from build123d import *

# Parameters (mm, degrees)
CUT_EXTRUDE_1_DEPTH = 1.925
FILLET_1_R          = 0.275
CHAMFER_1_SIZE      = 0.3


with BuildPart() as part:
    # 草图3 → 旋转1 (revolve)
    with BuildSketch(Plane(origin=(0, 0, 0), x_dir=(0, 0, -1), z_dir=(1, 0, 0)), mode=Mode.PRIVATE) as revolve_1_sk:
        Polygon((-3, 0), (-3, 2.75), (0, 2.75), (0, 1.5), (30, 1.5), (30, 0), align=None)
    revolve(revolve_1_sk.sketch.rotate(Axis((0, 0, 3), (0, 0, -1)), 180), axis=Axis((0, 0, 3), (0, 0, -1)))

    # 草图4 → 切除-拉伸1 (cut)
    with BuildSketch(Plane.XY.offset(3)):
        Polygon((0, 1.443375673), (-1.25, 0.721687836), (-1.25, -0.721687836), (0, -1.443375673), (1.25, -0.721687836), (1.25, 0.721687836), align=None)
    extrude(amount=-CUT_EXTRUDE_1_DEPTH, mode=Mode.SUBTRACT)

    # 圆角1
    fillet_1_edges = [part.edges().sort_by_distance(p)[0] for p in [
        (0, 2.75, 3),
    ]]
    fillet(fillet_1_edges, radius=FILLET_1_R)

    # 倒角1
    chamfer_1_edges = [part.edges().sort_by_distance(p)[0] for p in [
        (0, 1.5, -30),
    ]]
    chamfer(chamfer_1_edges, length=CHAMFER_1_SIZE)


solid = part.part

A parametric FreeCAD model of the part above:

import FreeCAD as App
import Part
import Sketcher
Q = App.Units.Quantity


def edges_at(feature, points):
    """Names of the edges that pass closest to the given points."""
    edges = feature.Shape.Edges
    near = lambda p: min(range(len(edges)), key=lambda i: edges[i].distToShape(Part.Vertex(*p))[0])
    return sorted({f"Edge{near(p) + 1}" for p in points})

doc = App.newDocument("Part")
body = doc.addObject("PartDesign::Body", "Body")

sketch1 = body.newObject("Sketcher::SketchObject", "Sketch")
sketch1.AttachmentSupport = (doc.getObject("YZ_Plane"), [""])
sketch1.MapMode = "FlatFace"
sketch1.addGeometry(Part.LineSegment(App.Vector(2.8, 3, 0), App.Vector(0, 3, 0)), False)
sketch1.addGeometry(Part.LineSegment(App.Vector(0, 3, 0), App.Vector(0, -30, 0)), False)
sketch1.addGeometry(Part.LineSegment(App.Vector(0, -30, 0), App.Vector(1.5, -30, 0)), False)
sketch1.addGeometry(Part.LineSegment(App.Vector(1.5, -30, 0), App.Vector(1.5, 0, 0)), False)
sketch1.addGeometry(Part.LineSegment(App.Vector(1.5, 0, 0), App.Vector(2.8, 0, 0)), False)
sketch1.addGeometry(Part.LineSegment(App.Vector(2.8, 0, 0), App.Vector(2.8, 3, 0)), False)
sketch1.addConstraint(Sketcher.Constraint("Coincident", 0, 2, 1, 1))
sketch1.addConstraint(Sketcher.Constraint("Coincident", 1, 2, 2, 1))
sketch1.addConstraint(Sketcher.Constraint("Coincident", 2, 2, 3, 1))
sketch1.addConstraint(Sketcher.Constraint("Coincident", 3, 2, 4, 1))
sketch1.addConstraint(Sketcher.Constraint("Coincident", 4, 2, 5, 1))
sketch1.addConstraint(Sketcher.Constraint("Coincident", 5, 2, 0, 1))
sketch1.addConstraint(Sketcher.Constraint("Horizontal", 0))
sketch1.addConstraint(Sketcher.Constraint("Vertical", 1))
sketch1.addConstraint(Sketcher.Constraint("Horizontal", 2))
sketch1.addConstraint(Sketcher.Constraint("Vertical", 3))
sketch1.addConstraint(Sketcher.Constraint("Horizontal", 4))
sketch1.addConstraint(Sketcher.Constraint("Vertical", 5))
sketch1.addConstraint(Sketcher.Constraint("PointOnObject", 0, 2, -2))
sketch1.addConstraint(Sketcher.Constraint("PointOnObject", 3, 2, -1))
sketch1.addConstraint(Sketcher.Constraint("DistanceY", 1, 2, 1, 1, Q("33 mm")))
sketch1.addConstraint(Sketcher.Constraint("DistanceY", 3, 1, 3, 2, Q("30 mm")))
sketch1.addConstraint(Sketcher.Constraint("DistanceX", 2, 1, 2, 2, Q("1.5 mm")))
sketch1.addConstraint(Sketcher.Constraint("DistanceX", 0, 2, 0, 1, Q("2.75 mm")))
revolution = body.newObject("PartDesign::Revolution", "Revolution")
revolution.Profile = sketch1
revolution.ReferenceAxis = (sketch1, ["V_Axis"])
revolution.Angle = 360

sketch2 = body.newObject("Sketcher::SketchObject", "Sketch001")
sketch2.AttachmentSupport = (doc.getObject("XY_Plane"), [""])
sketch2.MapMode = "FlatFace"
sketch2.AttachmentOffset = App.Placement(App.Vector(0, 0, 3), App.Rotation())
sketch2.addGeometry(Part.LineSegment(App.Vector(0, 1.4, 0), App.Vector(-1.2, 0.7, 0)), False)
sketch2.addGeometry(Part.LineSegment(App.Vector(-1.2, 0.7, 0), App.Vector(-1.2, -0.7, 0)), False)
sketch2.addGeometry(Part.LineSegment(App.Vector(-1.2, -0.7, 0), App.Vector(0, -1.4, 0)), False)
sketch2.addGeometry(Part.LineSegment(App.Vector(0, -1.4, 0), App.Vector(1.2, -0.7, 0)), False)
sketch2.addGeometry(Part.LineSegment(App.Vector(1.2, -0.7, 0), App.Vector(1.2, 0.7, 0)), False)
sketch2.addGeometry(Part.LineSegment(App.Vector(1.2, 0.7, 0), App.Vector(0, 1.4, 0)), False)
sketch2.addConstraint(Sketcher.Constraint("Coincident", 0, 2, 1, 1))
sketch2.addConstraint(Sketcher.Constraint("Coincident", 1, 2, 2, 1))
sketch2.addConstraint(Sketcher.Constraint("Coincident", 2, 2, 3, 1))
sketch2.addConstraint(Sketcher.Constraint("Coincident", 3, 2, 4, 1))
sketch2.addConstraint(Sketcher.Constraint("Coincident", 4, 2, 5, 1))
sketch2.addConstraint(Sketcher.Constraint("Coincident", 5, 2, 0, 1))
sketch2.addConstraint(Sketcher.Constraint("Vertical", 1))
sketch2.addConstraint(Sketcher.Constraint("Vertical", 4))
sketch2.addConstraint(Sketcher.Constraint("Symmetric", 0, 2, 3, 2, -1, 1))
sketch2.addConstraint(Sketcher.Constraint("Symmetric", 2, 2, 5, 2, -1, 1))
sketch2.addConstraint(Sketcher.Constraint("PointOnObject", 2, 2, -2))
sketch2.addConstraint(Sketcher.Constraint("Parallel", 2, 5))
sketch2.addConstraint(Sketcher.Constraint("Horizontal", 1, 2, 3, 2))
sketch2.addConstraint(Sketcher.Constraint("Angle", 0, Q("-150 deg")))
sketch2.addConstraint(Sketcher.Constraint("DistanceX", 1, 2, 3, 2, Q("2.5 mm")))
sketch2.addConstraint(Sketcher.Constraint("DistanceY", 1, 2, 1, 1, Q("1.443376 mm")))
pocket1 = body.newObject("PartDesign::Pocket", "Pocket")
pocket1.Profile = sketch2
pocket1.Length = 1.925
doc.recompute()

fillet = body.newObject("PartDesign::Fillet", "Fillet")
fillet.Base = (pocket1, edges_at(pocket1, [(0, 2.75, 3)]))
fillet.Radius = 0.275
doc.recompute()

chamfer = body.newObject("PartDesign::Chamfer", "Chamfer")
chamfer.Base = (fillet, edges_at(fillet, [(0, 1.5, -30)]))
chamfer.Size = 0.3

doc.recompute()
